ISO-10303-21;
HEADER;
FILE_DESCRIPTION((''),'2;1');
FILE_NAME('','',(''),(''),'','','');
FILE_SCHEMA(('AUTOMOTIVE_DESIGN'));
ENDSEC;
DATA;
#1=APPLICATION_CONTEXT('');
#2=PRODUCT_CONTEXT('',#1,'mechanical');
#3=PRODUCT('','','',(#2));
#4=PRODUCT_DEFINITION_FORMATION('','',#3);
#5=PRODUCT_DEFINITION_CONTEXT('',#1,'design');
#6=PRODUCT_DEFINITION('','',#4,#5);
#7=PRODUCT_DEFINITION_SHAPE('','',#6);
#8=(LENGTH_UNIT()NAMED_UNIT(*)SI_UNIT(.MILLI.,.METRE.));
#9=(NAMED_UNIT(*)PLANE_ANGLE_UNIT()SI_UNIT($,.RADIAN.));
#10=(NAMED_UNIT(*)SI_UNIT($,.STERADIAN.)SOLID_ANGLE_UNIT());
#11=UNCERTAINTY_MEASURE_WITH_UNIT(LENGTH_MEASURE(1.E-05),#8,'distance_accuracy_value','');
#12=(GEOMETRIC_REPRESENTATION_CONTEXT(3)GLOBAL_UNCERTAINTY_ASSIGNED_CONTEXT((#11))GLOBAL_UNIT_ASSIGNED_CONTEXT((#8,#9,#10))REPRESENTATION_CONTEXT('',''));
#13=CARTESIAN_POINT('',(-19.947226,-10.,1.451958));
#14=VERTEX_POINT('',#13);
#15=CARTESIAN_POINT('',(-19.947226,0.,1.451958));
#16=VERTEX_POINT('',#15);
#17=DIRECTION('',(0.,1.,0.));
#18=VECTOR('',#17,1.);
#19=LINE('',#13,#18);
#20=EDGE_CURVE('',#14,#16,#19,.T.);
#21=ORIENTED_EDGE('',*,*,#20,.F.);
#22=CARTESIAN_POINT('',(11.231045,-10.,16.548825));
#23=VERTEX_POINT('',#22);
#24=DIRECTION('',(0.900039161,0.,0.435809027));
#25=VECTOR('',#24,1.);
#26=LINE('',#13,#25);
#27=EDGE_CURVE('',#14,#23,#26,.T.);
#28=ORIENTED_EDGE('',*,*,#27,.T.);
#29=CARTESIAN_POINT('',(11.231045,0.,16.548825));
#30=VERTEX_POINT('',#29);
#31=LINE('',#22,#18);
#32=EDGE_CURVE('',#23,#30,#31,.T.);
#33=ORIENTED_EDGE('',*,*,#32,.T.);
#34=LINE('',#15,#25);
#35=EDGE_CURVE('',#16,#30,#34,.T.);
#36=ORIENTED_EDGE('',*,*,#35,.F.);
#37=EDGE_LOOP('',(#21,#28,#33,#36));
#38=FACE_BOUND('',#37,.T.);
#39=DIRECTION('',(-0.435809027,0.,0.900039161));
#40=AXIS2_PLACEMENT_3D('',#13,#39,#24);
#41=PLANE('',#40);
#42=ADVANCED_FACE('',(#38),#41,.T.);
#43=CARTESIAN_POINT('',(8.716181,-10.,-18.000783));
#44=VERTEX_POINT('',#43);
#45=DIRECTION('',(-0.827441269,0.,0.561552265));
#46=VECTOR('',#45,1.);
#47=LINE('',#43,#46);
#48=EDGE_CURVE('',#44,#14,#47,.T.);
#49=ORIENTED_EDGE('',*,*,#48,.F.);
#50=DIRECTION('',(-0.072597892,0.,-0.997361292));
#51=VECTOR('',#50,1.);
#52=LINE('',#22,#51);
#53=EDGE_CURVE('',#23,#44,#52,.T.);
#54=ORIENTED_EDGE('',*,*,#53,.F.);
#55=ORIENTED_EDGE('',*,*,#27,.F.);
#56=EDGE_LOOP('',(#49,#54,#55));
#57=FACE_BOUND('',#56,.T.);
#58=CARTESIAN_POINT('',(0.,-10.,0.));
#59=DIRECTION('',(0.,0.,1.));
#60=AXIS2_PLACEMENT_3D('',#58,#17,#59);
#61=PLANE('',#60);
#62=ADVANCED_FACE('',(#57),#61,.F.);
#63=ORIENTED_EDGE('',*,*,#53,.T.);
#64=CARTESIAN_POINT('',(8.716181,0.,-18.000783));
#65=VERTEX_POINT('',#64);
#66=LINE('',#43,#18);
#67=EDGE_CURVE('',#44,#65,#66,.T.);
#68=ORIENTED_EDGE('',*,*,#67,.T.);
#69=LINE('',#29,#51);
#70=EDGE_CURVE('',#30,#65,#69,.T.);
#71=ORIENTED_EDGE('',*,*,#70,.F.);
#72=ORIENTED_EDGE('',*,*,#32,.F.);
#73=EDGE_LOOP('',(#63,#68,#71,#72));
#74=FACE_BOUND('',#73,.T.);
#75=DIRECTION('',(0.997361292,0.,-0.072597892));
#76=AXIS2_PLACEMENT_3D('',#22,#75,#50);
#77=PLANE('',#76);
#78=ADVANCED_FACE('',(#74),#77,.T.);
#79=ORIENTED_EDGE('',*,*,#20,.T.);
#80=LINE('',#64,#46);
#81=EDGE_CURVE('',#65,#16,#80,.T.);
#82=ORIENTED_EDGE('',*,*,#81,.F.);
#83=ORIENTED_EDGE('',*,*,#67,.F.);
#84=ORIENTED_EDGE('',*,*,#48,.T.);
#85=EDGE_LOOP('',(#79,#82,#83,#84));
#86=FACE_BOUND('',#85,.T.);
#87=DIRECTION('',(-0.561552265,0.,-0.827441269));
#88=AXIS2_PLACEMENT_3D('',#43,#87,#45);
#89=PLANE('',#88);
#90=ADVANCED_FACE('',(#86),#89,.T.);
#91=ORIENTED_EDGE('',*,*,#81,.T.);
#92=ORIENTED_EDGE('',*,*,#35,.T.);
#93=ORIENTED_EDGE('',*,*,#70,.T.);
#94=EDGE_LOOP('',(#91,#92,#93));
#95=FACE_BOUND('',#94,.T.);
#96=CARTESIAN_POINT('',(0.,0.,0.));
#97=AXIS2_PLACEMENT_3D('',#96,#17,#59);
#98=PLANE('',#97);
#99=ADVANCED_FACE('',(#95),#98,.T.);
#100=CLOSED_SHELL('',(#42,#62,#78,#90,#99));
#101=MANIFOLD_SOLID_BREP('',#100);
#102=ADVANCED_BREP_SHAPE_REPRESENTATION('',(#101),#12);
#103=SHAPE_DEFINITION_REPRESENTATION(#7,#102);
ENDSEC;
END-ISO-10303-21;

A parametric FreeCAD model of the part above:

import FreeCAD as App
import Part
import Sketcher


def add_polygon(sketch, points):
    """Adds a closed chain of lines whose ends are joined by coincident constraints."""
    first, n = sketch.GeometryCount, len(points)
    for a, b in zip(points, points[1:] + points[:1]):
        sketch.addGeometry(Part.LineSegment(App.Vector(*a, 0), App.Vector(*b, 0)), False)
    for i in range(n):
        sketch.addConstraint(Sketcher.Constraint("Coincident", first + i, 2, first + (i + 1) % n, 1))

doc = App.newDocument("Part")
body = doc.addObject("PartDesign::Body", "Body")

# Sketch on XZ plane
sketch1 = body.newObject("Sketcher::SketchObject", "Sketch")
sketch1.AttachmentSupport = (doc.getObject("XZ_Plane"), [""])
sketch1.MapMode = "FlatFace"
add_polygon(sketch1, [(11.231045, 16.548825), (8.716181, -18.000783), (-19.947226, 1.451958)])  # lines 0-2
sketch1.addConstraint(Sketcher.Constraint("Equal", 0, 1))
sketch1.addConstraint(Sketcher.Constraint("Equal", 1, 2))
sketch1.addConstraint(Sketcher.Constraint("DistanceX", -1, 1, 0, 2, 8.716181))
sketch1.addConstraint(Sketcher.Constraint("DistanceY", 0, 2, 1, 2, 19.452741))
sketch1.addConstraint(Sketcher.Constraint("DistanceY", 0, 2, 2, 2, 34.549609))
sketch1.addConstraint(Sketcher.Constraint("DistanceY", 0, 2, -1, 1, 18.000783))
pad1 = body.newObject("PartDesign::Pad", "Pad")
pad1.Profile = sketch1
pad1.Length = 10

doc.recompute()
